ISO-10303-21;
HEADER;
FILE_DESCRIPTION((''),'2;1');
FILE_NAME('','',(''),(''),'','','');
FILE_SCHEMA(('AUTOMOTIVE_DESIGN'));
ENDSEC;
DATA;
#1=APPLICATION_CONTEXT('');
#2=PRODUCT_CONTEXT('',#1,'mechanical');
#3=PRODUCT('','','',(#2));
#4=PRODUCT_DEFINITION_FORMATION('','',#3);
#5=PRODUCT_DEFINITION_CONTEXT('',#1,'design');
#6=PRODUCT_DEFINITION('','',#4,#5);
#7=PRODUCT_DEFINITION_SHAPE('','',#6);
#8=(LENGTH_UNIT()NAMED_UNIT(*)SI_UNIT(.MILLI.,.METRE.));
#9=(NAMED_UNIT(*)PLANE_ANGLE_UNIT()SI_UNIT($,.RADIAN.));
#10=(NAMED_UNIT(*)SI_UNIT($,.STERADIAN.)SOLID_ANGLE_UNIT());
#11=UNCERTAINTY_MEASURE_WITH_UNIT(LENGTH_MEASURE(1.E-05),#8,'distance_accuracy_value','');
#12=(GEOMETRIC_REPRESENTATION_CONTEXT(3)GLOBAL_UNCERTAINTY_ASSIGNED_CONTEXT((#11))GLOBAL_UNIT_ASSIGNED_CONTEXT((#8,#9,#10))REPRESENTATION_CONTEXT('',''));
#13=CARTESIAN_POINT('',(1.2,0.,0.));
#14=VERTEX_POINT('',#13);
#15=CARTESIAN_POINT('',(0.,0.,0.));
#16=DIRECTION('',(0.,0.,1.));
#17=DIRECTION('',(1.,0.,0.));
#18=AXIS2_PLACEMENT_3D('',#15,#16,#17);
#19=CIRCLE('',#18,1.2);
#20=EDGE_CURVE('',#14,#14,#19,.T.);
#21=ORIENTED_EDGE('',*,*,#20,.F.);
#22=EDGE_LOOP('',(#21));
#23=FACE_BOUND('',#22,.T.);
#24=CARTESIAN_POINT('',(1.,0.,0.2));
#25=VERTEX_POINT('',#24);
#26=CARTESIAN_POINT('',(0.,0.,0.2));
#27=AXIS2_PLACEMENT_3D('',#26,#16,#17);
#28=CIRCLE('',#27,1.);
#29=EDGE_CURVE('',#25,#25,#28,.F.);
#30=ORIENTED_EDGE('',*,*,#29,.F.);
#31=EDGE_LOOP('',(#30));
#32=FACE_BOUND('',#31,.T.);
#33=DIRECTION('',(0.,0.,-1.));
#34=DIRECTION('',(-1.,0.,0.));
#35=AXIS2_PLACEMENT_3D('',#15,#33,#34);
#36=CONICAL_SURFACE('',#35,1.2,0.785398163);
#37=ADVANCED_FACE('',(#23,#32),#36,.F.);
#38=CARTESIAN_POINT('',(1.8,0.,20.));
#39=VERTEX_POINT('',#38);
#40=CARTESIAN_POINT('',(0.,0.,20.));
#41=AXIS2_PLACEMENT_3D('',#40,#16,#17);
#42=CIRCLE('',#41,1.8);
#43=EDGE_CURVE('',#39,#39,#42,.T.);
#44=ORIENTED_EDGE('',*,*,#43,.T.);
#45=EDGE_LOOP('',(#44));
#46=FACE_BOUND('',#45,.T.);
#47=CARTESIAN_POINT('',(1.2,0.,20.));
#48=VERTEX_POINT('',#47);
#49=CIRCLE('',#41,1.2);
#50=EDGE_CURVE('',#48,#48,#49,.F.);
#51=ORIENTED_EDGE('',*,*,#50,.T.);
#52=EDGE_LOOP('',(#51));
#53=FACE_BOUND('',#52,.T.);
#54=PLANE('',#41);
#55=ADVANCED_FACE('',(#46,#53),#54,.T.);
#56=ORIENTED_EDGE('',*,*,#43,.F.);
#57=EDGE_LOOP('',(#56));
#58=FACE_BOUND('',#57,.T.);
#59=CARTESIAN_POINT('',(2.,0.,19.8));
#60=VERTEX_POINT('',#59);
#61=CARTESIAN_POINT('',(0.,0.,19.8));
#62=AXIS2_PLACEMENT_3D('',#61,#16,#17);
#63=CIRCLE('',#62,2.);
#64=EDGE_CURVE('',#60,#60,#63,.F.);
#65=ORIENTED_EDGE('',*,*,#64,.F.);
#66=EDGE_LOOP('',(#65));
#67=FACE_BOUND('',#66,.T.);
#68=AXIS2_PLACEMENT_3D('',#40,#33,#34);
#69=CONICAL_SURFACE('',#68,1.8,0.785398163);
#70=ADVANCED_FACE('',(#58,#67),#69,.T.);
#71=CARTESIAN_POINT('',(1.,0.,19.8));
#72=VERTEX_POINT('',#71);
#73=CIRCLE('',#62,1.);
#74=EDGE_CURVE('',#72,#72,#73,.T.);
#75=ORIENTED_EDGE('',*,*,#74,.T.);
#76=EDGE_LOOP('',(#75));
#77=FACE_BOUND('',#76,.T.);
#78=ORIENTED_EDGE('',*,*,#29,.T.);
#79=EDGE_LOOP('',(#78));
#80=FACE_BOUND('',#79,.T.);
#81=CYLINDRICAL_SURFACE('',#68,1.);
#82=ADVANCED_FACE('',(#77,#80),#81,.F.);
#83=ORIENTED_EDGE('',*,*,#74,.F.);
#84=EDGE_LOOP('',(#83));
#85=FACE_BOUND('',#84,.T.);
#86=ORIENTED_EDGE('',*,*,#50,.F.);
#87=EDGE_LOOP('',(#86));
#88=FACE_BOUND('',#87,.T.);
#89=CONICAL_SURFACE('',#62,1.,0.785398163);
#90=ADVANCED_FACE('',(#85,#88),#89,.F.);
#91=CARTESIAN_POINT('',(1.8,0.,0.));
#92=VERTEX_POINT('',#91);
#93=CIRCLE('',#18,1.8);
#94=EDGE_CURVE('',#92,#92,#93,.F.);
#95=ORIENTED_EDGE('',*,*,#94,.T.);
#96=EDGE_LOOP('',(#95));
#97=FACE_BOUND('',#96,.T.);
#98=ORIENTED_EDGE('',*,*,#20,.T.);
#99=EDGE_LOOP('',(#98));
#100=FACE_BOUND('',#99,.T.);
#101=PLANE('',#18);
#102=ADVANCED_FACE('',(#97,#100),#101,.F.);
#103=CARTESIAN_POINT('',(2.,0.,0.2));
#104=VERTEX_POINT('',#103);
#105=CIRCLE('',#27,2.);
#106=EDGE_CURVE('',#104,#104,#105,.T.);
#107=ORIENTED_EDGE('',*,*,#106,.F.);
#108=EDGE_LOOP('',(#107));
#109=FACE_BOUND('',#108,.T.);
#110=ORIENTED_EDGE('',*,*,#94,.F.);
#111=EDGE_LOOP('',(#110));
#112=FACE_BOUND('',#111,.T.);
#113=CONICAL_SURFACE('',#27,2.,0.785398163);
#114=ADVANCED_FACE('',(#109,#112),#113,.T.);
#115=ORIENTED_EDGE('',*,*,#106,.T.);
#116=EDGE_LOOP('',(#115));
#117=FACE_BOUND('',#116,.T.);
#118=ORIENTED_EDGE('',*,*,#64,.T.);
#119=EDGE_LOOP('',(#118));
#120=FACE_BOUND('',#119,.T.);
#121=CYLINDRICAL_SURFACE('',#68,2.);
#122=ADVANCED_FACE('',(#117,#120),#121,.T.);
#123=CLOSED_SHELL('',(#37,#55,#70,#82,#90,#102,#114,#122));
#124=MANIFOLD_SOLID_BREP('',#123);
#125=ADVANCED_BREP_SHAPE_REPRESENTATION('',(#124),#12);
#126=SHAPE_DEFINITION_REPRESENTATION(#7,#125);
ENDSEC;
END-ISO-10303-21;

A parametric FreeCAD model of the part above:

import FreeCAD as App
import Part
import Sketcher

V = App.Vector


def edges_at(feature, points):
    """Names of the edges that pass closest to the given points."""
    edges = feature.Shape.Edges
    near = lambda p: min(range(len(edges)), key=lambda i: edges[i].distToShape(Part.Vertex(*p))[0])
    return sorted({f"Edge{near(p) + 1}" for p in points})

doc = App.newDocument("Part")
body = doc.addObject("PartDesign::Body", "Body")

sketch1 = body.newObject("Sketcher::SketchObject", "Sketch")
sketch1.AttachmentSupport = (doc.getObject("XY_Plane"), [""])
sketch1.MapMode = "FlatFace"
sketch1.addGeometry([
    Part.Circle(V(0, 0, 0), V(0, 0, 1), 2),
    Part.Circle(V(0, 0, 0), V(0, 0, 1), 1),
], False)
sketch1.addConstraint([
    Sketcher.Constraint("Coincident", 0, 3, -1, 1),
    Sketcher.Constraint("Coincident", 1, 3, -1, 1),
    Sketcher.Constraint("Diameter", 0, 4.0),
    Sketcher.Constraint("Diameter", 1, 2.0),
])
pad1 = body.newObject("PartDesign::Pad", "Pad")
pad1.Profile = sketch1
pad1.Length = 20
doc.recompute()

chamfer = body.newObject("PartDesign::Chamfer", "Chamfer")
chamfer.Base = (pad1, edges_at(pad1, [
    (-2, 0, 0),
    (-2, 0, 20),
    (-1, 0, 0),
    (-1, 0, 20),
]))
chamfer.Size = 0.2

doc.recompute()
